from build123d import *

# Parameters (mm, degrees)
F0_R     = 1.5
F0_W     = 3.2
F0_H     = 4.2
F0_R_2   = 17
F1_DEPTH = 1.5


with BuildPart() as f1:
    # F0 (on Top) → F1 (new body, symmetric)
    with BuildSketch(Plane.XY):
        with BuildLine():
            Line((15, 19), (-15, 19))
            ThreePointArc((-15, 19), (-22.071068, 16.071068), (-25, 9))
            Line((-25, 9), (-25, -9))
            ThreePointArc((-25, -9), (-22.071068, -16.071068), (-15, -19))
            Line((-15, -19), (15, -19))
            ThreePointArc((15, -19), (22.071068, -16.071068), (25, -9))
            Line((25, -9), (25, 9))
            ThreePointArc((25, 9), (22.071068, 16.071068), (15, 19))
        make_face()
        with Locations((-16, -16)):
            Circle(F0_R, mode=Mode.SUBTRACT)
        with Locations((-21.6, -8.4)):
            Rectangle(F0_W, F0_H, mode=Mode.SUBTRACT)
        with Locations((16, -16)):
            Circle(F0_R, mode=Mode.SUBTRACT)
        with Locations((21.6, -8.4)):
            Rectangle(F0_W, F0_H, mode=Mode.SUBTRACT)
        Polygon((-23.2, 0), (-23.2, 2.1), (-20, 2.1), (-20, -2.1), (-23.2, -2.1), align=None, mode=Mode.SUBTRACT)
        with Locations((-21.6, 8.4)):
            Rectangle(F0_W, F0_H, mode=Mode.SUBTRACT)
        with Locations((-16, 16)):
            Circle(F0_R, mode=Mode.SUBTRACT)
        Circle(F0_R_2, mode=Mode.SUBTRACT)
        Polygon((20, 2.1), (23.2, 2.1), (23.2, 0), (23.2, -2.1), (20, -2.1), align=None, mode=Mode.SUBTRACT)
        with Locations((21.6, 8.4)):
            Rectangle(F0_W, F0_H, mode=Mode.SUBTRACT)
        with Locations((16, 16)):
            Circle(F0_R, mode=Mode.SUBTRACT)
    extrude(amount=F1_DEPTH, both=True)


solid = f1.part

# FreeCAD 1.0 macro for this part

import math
import FreeCAD as App
import Part
import Sketcher

doc = App.newDocument("Part")
params = doc.addObject("Spreadsheet::Sheet", "Params")
for row, (alias, value) in enumerate([
    ("sketch1_diameter", "3 mm"),
    ("sketch1_diameter2", "34 mm"),
    ("sketch1_radius", "9.999999 mm"),
    ("sketch1_width", "30 mm"),
    ("sketch1_height", "18 mm"),
    ("pad1_length", "3 mm"),
], start=1):
    params.set(f"A{row}", alias)
    params.set(f"B{row}", "=" + value)
    params.setAlias(f"B{row}", alias)

body = doc.addObject("PartDesign::Body", "Body")

# Sketch on XY plane
sketch1 = body.newObject("Sketcher::SketchObject", "Sketch")
sketch1.AttachmentSupport = (doc.getObject("XY_Plane"), [""])
sketch1.MapMode = "FlatFace"
sketch1.addGeometry(Part.LineSegment(App.Vector(15, 19, 0), App.Vector(-15, 19, 0)), False)
sketch1.addGeometry(Part.ArcOfCircle(Part.Circle(App.Vector(-15.000001, 9.000001, 0), App.Vector(0, 0, 1), 9.999999), math.radians(89.999996), math.radians(180.000004)), False)
sketch1.addGeometry(Part.LineSegment(App.Vector(-25, 9, 0), App.Vector(-25, -9, 0)), False)
sketch1.addGeometry(Part.ArcOfCircle(Part.Circle(App.Vector(-15.000001, -9.000001, 0), App.Vector(0, 0, 1), 9.999999), math.radians(179.999996), math.radians(270.000004)), False)
sketch1.addGeometry(Part.LineSegment(App.Vector(-15, -19, 0), App.Vector(15, -19, 0)), False)
sketch1.addGeometry(Part.ArcOfCircle(Part.Circle(App.Vector(15.000001, -9.000001, 0), App.Vector(0, 0, 1), 9.999999), math.radians(-90.000004), math.radians(0.000004)), False)
sketch1.addGeometry(Part.LineSegment(App.Vector(25, -9, 0), App.Vector(25, 9, 0)), False)
sketch1.addGeometry(Part.ArcOfCircle(Part.Circle(App.Vector(15.000001, 9.000001, 0), App.Vector(0, 0, 1), 9.999999), math.radians(-0.000004), math.radians(90.000004)), False)
sketch1.addGeometry(Part.Circle(App.Vector(-16, -16, 0), App.Vector(0, 0, 1), 1.5), False)
sketch1.addGeometry(Part.LineSegment(App.Vector(-20, -10.5, 0), App.Vector(-23.2, -10.5, 0)), False)
sketch1.addGeometry(Part.LineSegment(App.Vector(-23.2, -10.5, 0), App.Vector(-23.2, -6.3, 0)), False)
sketch1.addGeometry(Part.LineSegment(App.Vector(-23.2, -6.3, 0), App.Vector(-20, -6.3, 0)), False)
sketch1.addGeometry(Part.LineSegment(App.Vector(-20, -6.3, 0), App.Vector(-20, -10.5, 0)), False)
sketch1.addGeometry(Part.Circle(App.Vector(16, -16, 0), App.Vector(0, 0, 1), 1.5), False)
sketch1.addGeometry(Part.LineSegment(App.Vector(23.2, -10.5, 0), App.Vector(20, -10.5, 0)), False)
sketch1.addGeometry(Part.LineSegment(App.Vector(20, -10.5, 0), App.Vector(20, -6.3, 0)), False)
sketch1.addGeometry(Part.LineSegment(App.Vector(20, -6.3, 0), App.Vector(23.2, -6.3, 0)), False)
sketch1.addGeometry(Part.LineSegment(App.Vector(23.2, -6.3, 0), App.Vector(23.2, -10.5, 0)), False)
sketch1.addGeometry(Part.LineSegment(App.Vector(-23.2, -2.1, 0), App.Vector(-23.2, 2.1, 0)), False)
sketch1.addGeometry(Part.LineSegment(App.Vector(-23.2, 2.1, 0), App.Vector(-20, 2.1, 0)), False)
sketch1.addGeometry(Part.LineSegment(App.Vector(-20, 2.1, 0), App.Vector(-20, -2.1, 0)), False)
sketch1.addGeometry(Part.LineSegment(App.Vector(-20, -2.1, 0), App.Vector(-23.2, -2.1, 0)), False)
sketch1.addGeometry(Part.LineSegment(App.Vector(-20, 6.3, 0), App.Vector(-23.2, 6.3, 0)), False)
sketch1.addGeometry(Part.LineSegment(App.Vector(-23.2, 6.3, 0), App.Vector(-23.2, 10.5, 0)), False)
sketch1.addGeometry(Part.LineSegment(App.Vector(-23.2, 10.5, 0), App.Vector(-20, 10.5, 0)), False)
sketch1.addGeometry(Part.LineSegment(App.Vector(-20, 10.5, 0), App.Vector(-20, 6.3, 0)), False)
sketch1.addGeometry(Part.Circle(App.Vector(-16, 16, 0), App.Vector(0, 0, 1), 1.5), False)
sketch1.addGeometry(Part.Circle(App.Vector(0, 0, 0), App.Vector(0, 0, 1), 17), False)
sketch1.addGeometry(Part.LineSegment(App.Vector(20, -2.1, 0), App.Vector(20, 2.1, 0)), False)
sketch1.addGeometry(Part.LineSegment(App.Vector(20, 2.1, 0), App.Vector(23.2, 2.1, 0)), False)
sketch1.addGeometry(Part.LineSegment(App.Vector(23.2, 2.1, 0), App.Vector(23.2, -2.1, 0)), False)
sketch1.addGeometry(Part.LineSegment(App.Vector(23.2, -2.1, 0), App.Vector(20, -2.1, 0)), False)
sketch1.addGeometry(Part.LineSegment(App.Vector(23.2, 6.3, 0), App.Vector(20, 6.3, 0)), False)
sketch1.addGeometry(Part.LineSegment(App.Vector(20, 6.3, 0), App.Vector(20, 10.5, 0)), False)
sketch1.addGeometry(Part.LineSegment(App.Vector(20, 10.5, 0), App.Vector(23.2, 10.5, 0)), False)
sketch1.addGeometry(Part.LineSegment(App.Vector(23.2, 10.5, 0), App.Vector(23.2, 6.3, 0)), False)
sketch1.addGeometry(Part.Circle(App.Vector(16, 16, 0), App.Vector(0, 0, 1), 1.5), False)
sketch1.addConstraint(Sketcher.Constraint("Tangent", 0, 2, 1, 1))
sketch1.addConstraint(Sketcher.Constraint("Tangent", 1, 2, 2, 1))
sketch1.addConstraint(Sketcher.Constraint("Tangent", 2, 2, 3, 1))
sketch1.addConstraint(Sketcher.Constraint("Tangent", 3, 2, 4, 1))
sketch1.addConstraint(Sketcher.Constraint("Tangent", 4, 2, 5, 1))
sketch1.addConstraint(Sketcher.Constraint("Tangent", 5, 2, 6, 1))
sketch1.addConstraint(Sketcher.Constraint("Tangent", 6, 2, 7, 1))
sketch1.addConstraint(Sketcher.Constraint("Tangent", 7, 2, 0, 1))
sketch1.addConstraint(Sketcher.Constraint("Coincident", 9, 2, 10, 1))
sketch1.addConstraint(Sketcher.Constraint("Coincident", 10, 2, 11, 1))
sketch1.addConstraint(Sketcher.Constraint("Coincident", 11, 2, 12, 1))
sketch1.addConstraint(Sketcher.Constraint("Coincident", 12, 2, 9, 1))
sketch1.addConstraint(Sketcher.Constraint("Coincident", 14, 2, 15, 1))
sketch1.addConstraint(Sketcher.Constraint("Coincident", 15, 2, 16, 1))
sketch1.addConstraint(Sketcher.Constraint("Coincident", 16, 2, 17, 1))
sketch1.addConstraint(Sketcher.Constraint("Coincident", 17, 2, 14, 1))
sketch1.addConstraint(Sketcher.Constraint("Coincident", 18, 2, 19, 1))
sketch1.addConstraint(Sketcher.Constraint("Coincident", 19, 2, 20, 1))
sketch1.addConstraint(Sketcher.Constraint("Coincident", 20, 2, 21, 1))
sketch1.addConstraint(Sketcher.Constraint("Coincident", 21, 2, 18, 1))
sketch1.addConstraint(Sketcher.Constraint("Coincident", 22, 2, 23, 1))
sketch1.addConstraint(Sketcher.Constraint("Coincident", 23, 2, 24, 1))
sketch1.addConstraint(Sketcher.Constraint("Coincident", 24, 2, 25, 1))
sketch1.addConstraint(Sketcher.Constraint("Coincident", 25, 2, 22, 1))
sketch1.addConstraint(Sketcher.Constraint("Coincident", 28, 2, 29, 1))
sketch1.addConstraint(Sketcher.Constraint("Coincident", 29, 2, 30, 1))
sketch1.addConstraint(Sketcher.Constraint("Coincident", 30, 2, 31, 1))
sketch1.addConstraint(Sketcher.Constraint("Coincident", 31, 2, 28, 1))
sketch1.addConstraint(Sketcher.Constraint("Coincident", 32, 2, 33, 1))
sketch1.addConstraint(Sketcher.Constraint("Coincident", 33, 2, 34, 1))
sketch1.addConstraint(Sketcher.Constraint("Coincident", 34, 2, 35, 1))
sketch1.addConstraint(Sketcher.Constraint("Coincident", 35, 2, 32, 1))
sketch1.addConstraint(Sketcher.Constraint("Horizontal", 0))
sketch1.addConstraint(Sketcher.Constraint("Vertical", 2))
sketch1.addConstraint(Sketcher.Constraint("Horizontal", 4))
sketch1.addConstraint(Sketcher.Constraint("Vertical", 6))
sketch1.addConstraint(Sketcher.Constraint("Horizontal", 9))
sketch1.addConstraint(Sketcher.Constraint("Vertical", 10))
sketch1.addConstraint(Sketcher.Constraint("Horizontal", 11))
sketch1.addConstraint(Sketcher.Constraint("Vertical", 12))
sketch1.addConstraint(Sketcher.Constraint("Horizontal", 14))
sketch1.addConstraint(Sketcher.Constraint("Vertical", 15))
sketch1.addConstraint(Sketcher.Constraint("Horizontal", 16))
sketch1.addConstraint(Sketcher.Constraint("Vertical", 17))
sketch1.addConstraint(Sketcher.Constraint("Vertical", 18))
sketch1.addConstraint(Sketcher.Constraint("Horizontal", 19))
sketch1.addConstraint(Sketcher.Constraint("Vertical", 20))
sketch1.addConstraint(Sketcher.Constraint("Horizontal", 21))
sketch1.addConstraint(Sketcher.Constraint("Horizontal", 22))
sketch1.addConstraint(Sketcher.Constraint("Vertical", 23))
sketch1.addConstraint(Sketcher.Constraint("Horizontal", 24))
sketch1.addConstraint(Sketcher.Constraint("Vertical", 25))
sketch1.addConstraint(Sketcher.Constraint("Vertical", 28))
sketch1.addConstraint(Sketcher.Constraint("Horizontal", 29))
sketch1.addConstraint(Sketcher.Constraint("Vertical", 30))
sketch1.addConstraint(Sketcher.Constraint("Horizontal", 31))
sketch1.addConstraint(Sketcher.Constraint("Horizontal", 32))
sketch1.addConstraint(Sketcher.Constraint("Vertical", 33))
sketch1.addConstraint(Sketcher.Constraint("Horizontal", 34))
sketch1.addConstraint(Sketcher.Constraint("Vertical", 35))
sketch1.addConstraint(Sketcher.Constraint("Coincident", 27, 3, -1, 1))
sketch1.addConstraint(Sketcher.Constraint("Equal", 1, 3))
sketch1.addConstraint(Sketcher.Constraint("Equal", 3, 5))
sketch1.addConstraint(Sketcher.Constraint("Equal", 5, 7))
sketch1.addConstraint(Sketcher.Constraint("Equal", 8, 13))
sketch1.addConstraint(Sketcher.Constraint("Equal", 13, 26))
sketch1.addConstraint(Sketcher.Constraint("Equal", 26, 36))
sketch1.addConstraint(Sketcher.Constraint("Symmetric", 1, 3, 5, 3, -1, 1))
sketch1.addConstraint(Sketcher.Constraint("Symmetric", 13, 3, 26, 3, -1, 1))
sketch1.addConstraint(Sketcher.Constraint("Symmetric", 8, 3, 36, 3, -1, 1))
sketch1.addConstraint(Sketcher.Constraint("Symmetric", 16, 2, 22, 2, -1, 1))
sketch1.addConstraint(Sketcher.Constraint("Symmetric", 14, 2, 24, 2, -1, 1))
sketch1.addConstraint(Sketcher.Constraint("Symmetric", 20, 2, 28, 2, -1, 1))
sketch1.addConstraint(Sketcher.Constraint("Symmetric", 18, 2, 30, 2, -1, 1))
sketch1.addConstraint(Sketcher.Constraint("Symmetric", 11, 2, 32, 2, -1, 1))
sketch1.addConstraint(Sketcher.Constraint("Symmetric", 9, 2, 34, 2, -1, 1))
sketch1.addConstraint(Sketcher.Constraint("Symmetric", 8, 3, 13, 3, -2))
sketch1.addConstraint(Sketcher.Constraint("Symmetric", 12, 2, 14, 2, -2))
sketch1.addConstraint(Sketcher.Constraint("Symmetric", 10, 2, 16, 2, -2))
sketch1.addConstraint(Sketcher.Constraint("Horizontal", 19, 2, 28, 2))
sketch1.addConstraint(Sketcher.Constraint("Vertical", 10, 2, 18, 2))
sketch1.addConstraint(Sketcher.Constraint("Vertical", 12, 2, 19, 2))
sketch1.addConstraint(Sketcher.Constraint("Equal", 17, 18))
sketch1.addConstraint(Sketcher.Constraint("Diameter", 8, 3.0))
sketch1.addConstraint(Sketcher.Constraint("Diameter", 27, 34.0))
sketch1.addConstraint(Sketcher.Constraint("Radius", 1, 9.999999))
sketch1.addConstraint(Sketcher.Constraint("DistanceX", 0, 2, 0, 1, 30.0))
sketch1.addConstraint(Sketcher.Constraint("DistanceY", 2, 2, 2, 1, 18.0))
sketch1.addConstraint(Sketcher.Constraint("DistanceX", 9, 2, 9, 1, 3.2))
sketch1.addConstraint(Sketcher.Constraint("DistanceY", 10, 1, 10, 2, 4.2))
sketch1.addConstraint(Sketcher.Constraint("DistanceX", 8, 3, -1, 1, 16.0))
sketch1.addConstraint(Sketcher.Constraint("DistanceY", 8, 3, -1, 1, 16.0))
sketch1.addConstraint(Sketcher.Constraint("DistanceX", 11, 2, -1, 1, 20.0))
sketch1.addConstraint(Sketcher.Constraint("DistanceY", 9, 2, -1, 1, 10.5))
sketch1.setExpression("Constraints[83]", "Params.sketch1_diameter")
sketch1.setExpression("Constraints[84]", "Params.sketch1_diameter2")
sketch1.setExpression("Constraints[85]", "Params.sketch1_radius")
sketch1.setExpression("Constraints[86]", "Params.sketch1_width")
sketch1.setExpression("Constraints[87]", "Params.sketch1_height")
pad1 = body.newObject("PartDesign::Pad", "Pad")
pad1.Profile = sketch1
pad1.setExpression("Length", "Params.pad1_length")
pad1.Midplane = True

doc.recompute()
